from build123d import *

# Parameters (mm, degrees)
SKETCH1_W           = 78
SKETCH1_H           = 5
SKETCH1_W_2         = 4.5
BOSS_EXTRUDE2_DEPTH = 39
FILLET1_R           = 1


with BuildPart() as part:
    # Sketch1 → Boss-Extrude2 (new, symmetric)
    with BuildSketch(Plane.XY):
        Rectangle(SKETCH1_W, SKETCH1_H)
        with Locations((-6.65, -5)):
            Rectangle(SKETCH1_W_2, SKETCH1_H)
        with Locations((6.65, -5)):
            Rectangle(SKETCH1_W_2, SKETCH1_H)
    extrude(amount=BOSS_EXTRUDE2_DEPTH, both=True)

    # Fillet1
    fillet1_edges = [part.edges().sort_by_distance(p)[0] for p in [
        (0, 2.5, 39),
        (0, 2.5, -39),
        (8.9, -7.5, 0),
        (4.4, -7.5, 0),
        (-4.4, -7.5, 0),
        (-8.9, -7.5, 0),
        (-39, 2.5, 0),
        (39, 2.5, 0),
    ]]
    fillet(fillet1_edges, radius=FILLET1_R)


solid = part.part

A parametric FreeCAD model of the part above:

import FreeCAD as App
import Part
import Sketcher


def edges_at(feature, points):
    """Names of the edges that pass closest to the given points."""
    edges = feature.Shape.Edges
    near = lambda p: min(range(len(edges)), key=lambda i: edges[i].distToShape(Part.Vertex(*p))[0])
    return sorted({f"Edge{near(p) + 1}" for p in points})


def add_polygon(sketch, points):
    """Adds a closed chain of lines whose ends are joined by coincident constraints."""
    first, n = sketch.GeometryCount, len(points)
    for a, b in zip(points, points[1:] + points[:1]):
        sketch.addGeometry(Part.LineSegment(App.Vector(*a, 0), App.Vector(*b, 0)), False)
    for i in range(n):
        sketch.addConstraint(Sketcher.Constraint("Coincident", first + i, 2, first + (i + 1) % n, 1))

doc = App.newDocument("Part")
body = doc.addObject("PartDesign::Body", "Body")

# Sketch on XY plane
sketch1 = body.newObject("Sketcher::SketchObject", "Sketch")
sketch1.AttachmentSupport = (doc.getObject("XY_Plane"), [""])
sketch1.MapMode = "FlatFace"
add_polygon(sketch1, [(-39, 2.5), (-39, -2.5), (-8.9, -2.5), (-8.9, -7.5), (-4.4, -7.5), (-4.4, -2.5), (4.4, -2.5), (4.4, -7.5), (8.9, -7.5), (8.9, -2.5), (39, -2.5), (39, 2.5)])  # lines 0-11
sketch1.addConstraint([
    Sketcher.Constraint("Vertical", 0),
    Sketcher.Constraint("Horizontal", 1),
    Sketcher.Constraint("Vertical", 2),
    Sketcher.Constraint("Horizontal", 3),
    Sketcher.Constraint("Vertical", 4),
    Sketcher.Constraint("Horizontal", 5),
    Sketcher.Constraint("Vertical", 6),
    Sketcher.Constraint("Horizontal", 7),
    Sketcher.Constraint("Vertical", 8),
    Sketcher.Constraint("Horizontal", 9),
    Sketcher.Constraint("Vertical", 10),
    Sketcher.Constraint("Horizontal", 11),
    Sketcher.Constraint("Symmetric", 0, 2, 10, 2, -1, 1),
    Sketcher.Constraint("Symmetric", 3, 2, 6, 2, -2),
    Sketcher.Constraint("Symmetric", 1, 2, 8, 2, -2),
    Sketcher.Constraint("Horizontal", 1, 2, 4, 2),
    Sketcher.Constraint("Equal", 0, 2),
    Sketcher.Constraint("DistanceX", 11, 2, 11, 1, 78.0),
    Sketcher.Constraint("DistanceY", 0, 2, 0, 1, 5.0),
    Sketcher.Constraint("DistanceX", 1, 1, 1, 2, 30.1),
    Sketcher.Constraint("DistanceX", 3, 1, 3, 2, 4.5),
])
pad1 = body.newObject("PartDesign::Pad", "Pad")
pad1.Profile = sketch1
pad1.Length = 78
pad1.Midplane = True
doc.recompute()

fillet = body.newObject("PartDesign::Fillet", "Fillet")
fillet.Base = (pad1, edges_at(pad1, [
    (0, 2.5, 39),
    (0, 2.5, -39),
    (8.9, -7.5, 0),
    (4.4, -7.5, 0),
    (-4.4, -7.5, 0),
    (-8.9, -7.5, 0),
    (-39, 2.5, 0),
    (39, 2.5, 0),
]))
fillet.Radius = 1

doc.recompute()
